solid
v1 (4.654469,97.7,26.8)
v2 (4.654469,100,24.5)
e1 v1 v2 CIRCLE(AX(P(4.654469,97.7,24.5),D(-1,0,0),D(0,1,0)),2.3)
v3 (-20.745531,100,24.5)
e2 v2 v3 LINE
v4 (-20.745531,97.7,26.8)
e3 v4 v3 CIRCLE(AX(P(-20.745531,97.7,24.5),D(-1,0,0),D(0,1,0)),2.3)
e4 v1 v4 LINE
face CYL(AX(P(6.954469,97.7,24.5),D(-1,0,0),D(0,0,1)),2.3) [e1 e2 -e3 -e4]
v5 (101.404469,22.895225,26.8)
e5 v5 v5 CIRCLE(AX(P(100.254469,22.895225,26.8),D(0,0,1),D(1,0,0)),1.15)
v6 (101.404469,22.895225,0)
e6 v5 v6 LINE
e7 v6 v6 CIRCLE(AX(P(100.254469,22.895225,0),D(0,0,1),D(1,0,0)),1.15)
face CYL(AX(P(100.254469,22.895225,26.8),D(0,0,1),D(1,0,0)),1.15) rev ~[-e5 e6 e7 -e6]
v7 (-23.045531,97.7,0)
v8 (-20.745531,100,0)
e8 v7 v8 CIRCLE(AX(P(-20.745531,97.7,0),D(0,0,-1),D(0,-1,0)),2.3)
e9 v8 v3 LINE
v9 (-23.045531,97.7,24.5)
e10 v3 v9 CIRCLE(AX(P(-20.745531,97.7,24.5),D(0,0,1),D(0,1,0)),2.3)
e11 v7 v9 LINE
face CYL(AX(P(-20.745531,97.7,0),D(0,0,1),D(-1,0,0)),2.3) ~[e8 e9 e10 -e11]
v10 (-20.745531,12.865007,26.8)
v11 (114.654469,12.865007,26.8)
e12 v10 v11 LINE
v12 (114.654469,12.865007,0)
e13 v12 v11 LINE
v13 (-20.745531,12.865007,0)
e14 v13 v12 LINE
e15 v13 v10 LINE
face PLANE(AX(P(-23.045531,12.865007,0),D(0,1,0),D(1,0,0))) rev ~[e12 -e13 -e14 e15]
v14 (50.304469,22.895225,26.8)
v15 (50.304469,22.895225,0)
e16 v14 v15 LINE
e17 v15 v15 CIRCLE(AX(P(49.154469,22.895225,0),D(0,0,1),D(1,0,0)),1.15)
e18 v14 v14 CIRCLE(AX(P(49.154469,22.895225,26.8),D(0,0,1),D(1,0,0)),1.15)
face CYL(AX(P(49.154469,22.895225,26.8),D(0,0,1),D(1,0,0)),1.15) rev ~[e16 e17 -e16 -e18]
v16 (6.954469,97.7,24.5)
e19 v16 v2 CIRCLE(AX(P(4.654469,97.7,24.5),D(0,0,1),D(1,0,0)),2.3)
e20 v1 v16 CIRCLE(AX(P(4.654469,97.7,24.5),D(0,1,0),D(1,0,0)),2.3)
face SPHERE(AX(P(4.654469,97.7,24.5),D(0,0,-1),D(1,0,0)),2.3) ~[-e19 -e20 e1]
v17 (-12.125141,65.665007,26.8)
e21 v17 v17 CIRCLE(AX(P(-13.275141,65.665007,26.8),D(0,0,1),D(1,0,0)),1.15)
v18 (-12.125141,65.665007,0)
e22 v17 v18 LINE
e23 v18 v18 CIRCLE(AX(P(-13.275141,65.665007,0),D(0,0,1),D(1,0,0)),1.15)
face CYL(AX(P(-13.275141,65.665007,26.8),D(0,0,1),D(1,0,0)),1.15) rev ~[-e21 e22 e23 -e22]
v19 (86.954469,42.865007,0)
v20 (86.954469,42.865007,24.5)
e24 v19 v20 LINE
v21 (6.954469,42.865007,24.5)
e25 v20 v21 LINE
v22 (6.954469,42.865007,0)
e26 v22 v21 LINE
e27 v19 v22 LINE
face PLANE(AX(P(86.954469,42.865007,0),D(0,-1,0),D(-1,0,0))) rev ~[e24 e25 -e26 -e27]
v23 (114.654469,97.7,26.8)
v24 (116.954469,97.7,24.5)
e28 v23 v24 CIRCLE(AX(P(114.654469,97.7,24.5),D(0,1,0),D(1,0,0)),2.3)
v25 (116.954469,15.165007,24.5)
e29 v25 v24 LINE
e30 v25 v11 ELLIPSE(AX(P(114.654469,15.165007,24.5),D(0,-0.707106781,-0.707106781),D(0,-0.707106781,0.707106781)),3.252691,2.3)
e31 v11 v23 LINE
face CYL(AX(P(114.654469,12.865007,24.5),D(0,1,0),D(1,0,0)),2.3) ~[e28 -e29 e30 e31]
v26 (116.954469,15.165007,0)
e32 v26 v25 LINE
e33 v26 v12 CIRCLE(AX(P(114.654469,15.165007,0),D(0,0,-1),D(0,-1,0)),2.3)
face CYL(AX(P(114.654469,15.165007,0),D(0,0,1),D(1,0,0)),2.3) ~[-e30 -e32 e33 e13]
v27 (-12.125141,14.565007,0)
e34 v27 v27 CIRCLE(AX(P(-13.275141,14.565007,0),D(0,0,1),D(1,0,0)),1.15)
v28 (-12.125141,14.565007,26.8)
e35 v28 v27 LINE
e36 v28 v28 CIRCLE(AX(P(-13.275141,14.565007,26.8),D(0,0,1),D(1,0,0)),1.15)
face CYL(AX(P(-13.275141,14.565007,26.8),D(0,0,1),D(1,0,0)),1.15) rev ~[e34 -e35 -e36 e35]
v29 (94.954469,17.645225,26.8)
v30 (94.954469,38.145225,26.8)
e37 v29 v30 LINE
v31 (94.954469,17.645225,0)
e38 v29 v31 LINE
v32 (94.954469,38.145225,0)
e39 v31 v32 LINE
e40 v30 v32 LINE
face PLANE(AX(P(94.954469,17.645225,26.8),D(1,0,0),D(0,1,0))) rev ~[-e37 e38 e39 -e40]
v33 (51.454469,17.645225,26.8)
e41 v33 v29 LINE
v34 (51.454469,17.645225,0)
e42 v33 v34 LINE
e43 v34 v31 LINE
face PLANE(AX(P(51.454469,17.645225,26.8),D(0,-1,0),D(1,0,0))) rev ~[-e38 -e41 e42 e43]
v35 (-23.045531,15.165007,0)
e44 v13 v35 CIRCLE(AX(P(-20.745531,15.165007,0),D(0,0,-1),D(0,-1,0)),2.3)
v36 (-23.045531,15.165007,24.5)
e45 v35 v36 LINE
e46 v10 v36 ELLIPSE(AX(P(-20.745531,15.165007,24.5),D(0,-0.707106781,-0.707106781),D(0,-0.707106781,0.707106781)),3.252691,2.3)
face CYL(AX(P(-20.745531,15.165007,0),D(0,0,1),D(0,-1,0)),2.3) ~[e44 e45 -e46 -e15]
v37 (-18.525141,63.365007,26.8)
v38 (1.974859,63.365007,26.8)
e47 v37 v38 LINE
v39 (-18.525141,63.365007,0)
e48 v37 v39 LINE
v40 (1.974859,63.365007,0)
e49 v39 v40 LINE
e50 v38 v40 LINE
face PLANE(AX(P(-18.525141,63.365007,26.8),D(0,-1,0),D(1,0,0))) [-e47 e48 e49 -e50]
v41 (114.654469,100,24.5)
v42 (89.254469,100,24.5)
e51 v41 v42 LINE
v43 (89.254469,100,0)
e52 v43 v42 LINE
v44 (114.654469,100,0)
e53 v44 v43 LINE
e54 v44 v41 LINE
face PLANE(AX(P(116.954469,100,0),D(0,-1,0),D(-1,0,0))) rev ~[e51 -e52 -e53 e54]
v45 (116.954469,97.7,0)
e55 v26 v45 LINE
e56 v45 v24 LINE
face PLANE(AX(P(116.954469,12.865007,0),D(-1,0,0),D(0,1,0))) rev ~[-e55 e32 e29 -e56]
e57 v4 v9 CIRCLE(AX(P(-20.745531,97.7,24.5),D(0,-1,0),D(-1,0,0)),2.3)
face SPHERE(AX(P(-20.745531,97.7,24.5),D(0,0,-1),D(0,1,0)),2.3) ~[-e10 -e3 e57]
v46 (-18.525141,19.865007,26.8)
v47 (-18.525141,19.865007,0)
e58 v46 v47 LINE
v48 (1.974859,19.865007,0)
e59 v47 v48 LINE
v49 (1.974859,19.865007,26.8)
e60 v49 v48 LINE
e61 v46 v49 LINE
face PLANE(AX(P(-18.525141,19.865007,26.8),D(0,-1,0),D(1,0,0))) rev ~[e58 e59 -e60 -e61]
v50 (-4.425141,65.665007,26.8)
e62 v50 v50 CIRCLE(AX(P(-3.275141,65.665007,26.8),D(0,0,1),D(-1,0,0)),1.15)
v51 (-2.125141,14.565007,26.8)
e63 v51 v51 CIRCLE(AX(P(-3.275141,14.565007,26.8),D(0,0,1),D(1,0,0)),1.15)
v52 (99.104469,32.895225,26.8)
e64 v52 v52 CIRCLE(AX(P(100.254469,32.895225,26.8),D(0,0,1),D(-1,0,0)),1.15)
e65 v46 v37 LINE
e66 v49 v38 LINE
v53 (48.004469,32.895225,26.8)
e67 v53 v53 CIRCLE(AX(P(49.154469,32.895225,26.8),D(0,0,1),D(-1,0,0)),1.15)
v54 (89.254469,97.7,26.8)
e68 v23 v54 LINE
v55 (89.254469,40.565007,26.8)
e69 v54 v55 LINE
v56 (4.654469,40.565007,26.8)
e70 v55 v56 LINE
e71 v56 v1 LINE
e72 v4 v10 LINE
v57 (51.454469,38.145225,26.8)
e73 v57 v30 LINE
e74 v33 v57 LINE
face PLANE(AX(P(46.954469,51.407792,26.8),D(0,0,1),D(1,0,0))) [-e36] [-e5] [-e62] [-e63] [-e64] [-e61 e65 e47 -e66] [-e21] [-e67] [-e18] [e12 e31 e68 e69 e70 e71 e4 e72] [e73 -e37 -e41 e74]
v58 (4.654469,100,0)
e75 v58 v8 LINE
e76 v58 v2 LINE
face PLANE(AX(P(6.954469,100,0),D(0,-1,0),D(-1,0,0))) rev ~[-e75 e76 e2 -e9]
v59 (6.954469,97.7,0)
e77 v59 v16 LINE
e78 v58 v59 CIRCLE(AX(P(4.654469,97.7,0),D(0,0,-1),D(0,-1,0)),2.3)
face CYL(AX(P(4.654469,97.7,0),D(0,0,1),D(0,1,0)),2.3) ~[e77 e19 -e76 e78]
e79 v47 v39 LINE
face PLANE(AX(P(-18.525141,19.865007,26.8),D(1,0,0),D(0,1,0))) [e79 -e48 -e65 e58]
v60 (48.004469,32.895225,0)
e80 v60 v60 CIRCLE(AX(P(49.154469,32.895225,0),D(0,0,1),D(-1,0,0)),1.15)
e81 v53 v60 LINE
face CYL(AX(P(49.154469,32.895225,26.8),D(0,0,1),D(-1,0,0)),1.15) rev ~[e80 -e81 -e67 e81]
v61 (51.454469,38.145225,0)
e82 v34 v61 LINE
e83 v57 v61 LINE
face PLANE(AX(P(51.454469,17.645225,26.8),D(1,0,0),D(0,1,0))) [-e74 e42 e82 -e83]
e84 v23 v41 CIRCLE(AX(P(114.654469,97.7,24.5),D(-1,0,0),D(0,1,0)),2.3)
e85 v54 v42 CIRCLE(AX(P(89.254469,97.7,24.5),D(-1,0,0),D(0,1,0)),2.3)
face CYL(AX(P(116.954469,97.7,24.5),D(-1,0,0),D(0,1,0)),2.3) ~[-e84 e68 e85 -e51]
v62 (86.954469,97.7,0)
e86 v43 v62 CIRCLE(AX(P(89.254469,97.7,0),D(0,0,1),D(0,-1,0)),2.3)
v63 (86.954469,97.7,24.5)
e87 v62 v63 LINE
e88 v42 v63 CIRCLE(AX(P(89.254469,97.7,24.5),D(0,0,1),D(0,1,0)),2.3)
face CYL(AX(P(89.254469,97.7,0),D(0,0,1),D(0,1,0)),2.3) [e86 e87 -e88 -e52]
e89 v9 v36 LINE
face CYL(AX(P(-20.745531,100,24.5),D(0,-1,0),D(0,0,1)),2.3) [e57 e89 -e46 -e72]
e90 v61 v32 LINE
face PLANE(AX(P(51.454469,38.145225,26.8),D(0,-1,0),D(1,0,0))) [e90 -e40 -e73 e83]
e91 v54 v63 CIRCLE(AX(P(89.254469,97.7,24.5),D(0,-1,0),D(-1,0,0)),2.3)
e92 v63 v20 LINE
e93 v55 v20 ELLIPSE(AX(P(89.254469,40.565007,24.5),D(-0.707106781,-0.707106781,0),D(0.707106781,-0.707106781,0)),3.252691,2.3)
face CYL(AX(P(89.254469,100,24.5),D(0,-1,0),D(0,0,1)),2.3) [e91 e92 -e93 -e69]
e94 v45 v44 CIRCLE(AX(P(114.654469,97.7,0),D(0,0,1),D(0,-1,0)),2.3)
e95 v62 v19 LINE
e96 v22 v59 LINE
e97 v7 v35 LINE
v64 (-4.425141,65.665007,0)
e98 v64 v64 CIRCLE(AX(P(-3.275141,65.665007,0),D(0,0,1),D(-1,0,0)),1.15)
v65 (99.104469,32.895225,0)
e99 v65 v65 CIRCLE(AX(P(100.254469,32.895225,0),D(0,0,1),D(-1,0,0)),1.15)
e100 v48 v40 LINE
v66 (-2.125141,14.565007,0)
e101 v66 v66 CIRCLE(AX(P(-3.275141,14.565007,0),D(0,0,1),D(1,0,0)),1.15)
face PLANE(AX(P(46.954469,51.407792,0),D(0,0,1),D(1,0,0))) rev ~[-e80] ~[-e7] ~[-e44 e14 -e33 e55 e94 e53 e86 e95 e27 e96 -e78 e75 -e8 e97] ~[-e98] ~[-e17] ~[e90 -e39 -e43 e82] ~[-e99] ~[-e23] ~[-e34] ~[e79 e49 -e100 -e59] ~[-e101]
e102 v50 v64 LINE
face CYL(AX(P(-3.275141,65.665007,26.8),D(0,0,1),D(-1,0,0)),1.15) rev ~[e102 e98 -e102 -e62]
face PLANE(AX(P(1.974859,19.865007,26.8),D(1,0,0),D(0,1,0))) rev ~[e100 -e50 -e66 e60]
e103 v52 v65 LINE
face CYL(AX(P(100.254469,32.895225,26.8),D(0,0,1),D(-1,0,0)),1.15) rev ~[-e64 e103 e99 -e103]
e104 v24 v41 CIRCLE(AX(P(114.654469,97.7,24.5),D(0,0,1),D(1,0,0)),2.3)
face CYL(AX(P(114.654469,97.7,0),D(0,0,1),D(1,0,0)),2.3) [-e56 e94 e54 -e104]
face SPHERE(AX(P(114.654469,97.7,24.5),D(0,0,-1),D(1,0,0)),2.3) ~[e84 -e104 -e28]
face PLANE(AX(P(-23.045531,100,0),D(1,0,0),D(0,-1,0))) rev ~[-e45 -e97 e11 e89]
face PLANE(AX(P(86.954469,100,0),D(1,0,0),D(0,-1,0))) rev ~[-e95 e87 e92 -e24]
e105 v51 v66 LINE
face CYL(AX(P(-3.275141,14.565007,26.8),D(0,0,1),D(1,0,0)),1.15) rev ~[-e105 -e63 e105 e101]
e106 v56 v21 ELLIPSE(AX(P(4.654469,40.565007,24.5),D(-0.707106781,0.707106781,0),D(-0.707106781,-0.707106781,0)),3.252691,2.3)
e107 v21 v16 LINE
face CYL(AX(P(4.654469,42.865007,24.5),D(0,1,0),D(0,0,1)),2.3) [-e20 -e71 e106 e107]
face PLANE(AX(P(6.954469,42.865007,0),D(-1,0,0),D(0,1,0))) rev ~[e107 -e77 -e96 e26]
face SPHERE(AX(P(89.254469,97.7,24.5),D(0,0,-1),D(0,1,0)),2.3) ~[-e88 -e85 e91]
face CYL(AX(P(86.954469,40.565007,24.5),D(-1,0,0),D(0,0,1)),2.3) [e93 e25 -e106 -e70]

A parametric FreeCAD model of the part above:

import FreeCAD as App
import Part
import Sketcher

V = App.Vector


def edges_at(feature, points):
    """Names of the edges that pass closest to the given points."""
    edges = feature.Shape.Edges
    near = lambda p: min(range(len(edges)), key=lambda i: edges[i].distToShape(Part.Vertex(*p))[0])
    return sorted({f"Edge{near(p) + 1}" for p in points})

doc = App.newDocument("Part")
body = doc.addObject("PartDesign::Body", "Body")

sketch1 = doc.addObject("Sketcher::SketchObject", "Sketch")
body.addObject(sketch1)
sketch1.AttachmentSupport = (doc.XY_Plane, [""])
sketch1.MapMode = "FlatFace"
sketch1.addGeometry([
    Part.LineSegment(V(116.954469, 12.865007, 0), V(116.954469, 100, 0)),
    Part.LineSegment(V(116.954469, 100, 0), V(86.954469, 100, 0)),
    Part.LineSegment(V(86.954469, 100, 0), V(86.954469, 42.865007, 0)),
    Part.LineSegment(V(86.954469, 42.865007, 0), V(6.954469, 42.865007, 0)),
    Part.LineSegment(V(6.954469, 42.865007, 0), V(6.954469, 100, 0)),
    Part.LineSegment(V(6.954469, 100, 0), V(-23.045531, 100, 0)),
    Part.LineSegment(V(-23.045531, 100, 0), V(-23.045531, 12.865007, 0)),
    Part.LineSegment(V(-23.045531, 12.865007, 0), V(116.954469, 12.865007, 0)),
], False)
sketch1.addConstraint([
    Sketcher.Constraint("Coincident", 0, 2, 1, 1),
    Sketcher.Constraint("Coincident", 1, 2, 2, 1),
    Sketcher.Constraint("Coincident", 2, 2, 3, 1),
    Sketcher.Constraint("Coincident", 3, 2, 4, 1),
    Sketcher.Constraint("Coincident", 4, 2, 5, 1),
    Sketcher.Constraint("Coincident", 5, 2, 6, 1),
    Sketcher.Constraint("Coincident", 6, 2, 7, 1),
    Sketcher.Constraint("Coincident", 7, 2, 0, 1),
    Sketcher.Constraint("Vertical", 0),
    Sketcher.Constraint("Horizontal", 1),
    Sketcher.Constraint("Vertical", 2),
    Sketcher.Constraint("Horizontal", 3),
    Sketcher.Constraint("Vertical", 4),
    Sketcher.Constraint("Horizontal", 5),
    Sketcher.Constraint("Vertical", 6),
    Sketcher.Constraint("Horizontal", 7),
    Sketcher.Constraint("Horizontal", 1, 2, 4, 2),
    Sketcher.Constraint("Equal", 1, 5),
    Sketcher.Constraint("DistanceX", 1, 2, 1, 1, 30.0),
    Sketcher.Constraint("DistanceX", 3, 2, 3, 1, 80.0),
    Sketcher.Constraint("DistanceY", -1, 1, 0, 2, 100.0),
    Sketcher.Constraint("DistanceY", 6, 2, 3, 2, 30.0),
    Sketcher.Constraint("DistanceY", 0, 1, 0, 2, 87.134993),
    Sketcher.Constraint("DistanceX", -1, 1, 0, 2, 116.954469),
])
pad1 = doc.addObject("PartDesign::Pad", "Pad")
body.addObject(pad1)
pad1.Profile = sketch1
pad1.Length = 26.8

sketch2 = doc.addObject("Sketcher::SketchObject", "Sketch001")
body.addObject(sketch2)
sketch2.AttachmentSupport = (doc.XY_Plane, [""])
sketch2.MapMode = "FlatFace"
sketch2.AttachmentOffset = App.Placement(V(0, 0, 26.8), App.Rotation())
sketch2.addGeometry([
    Part.LineSegment(V(-18.525141, 63.365007, 0), V(-18.525141, 19.865007, 0)),
    Part.LineSegment(V(-18.525141, 19.865007, 0), V(1.974859, 19.865007, 0)),
    Part.LineSegment(V(1.974859, 19.865007, 0), V(1.974859, 63.365007, 0)),
    Part.LineSegment(V(1.974859, 63.365007, 0), V(-18.525141, 63.365007, 0)),
    Part.LineSegment(V(51.454469, 38.145225, 0), V(51.454469, 17.645225, 0)),
    Part.LineSegment(V(51.454469, 17.645225, 0), V(94.954469, 17.645225, 0)),
    Part.LineSegment(V(94.954469, 17.645225, 0), V(94.954469, 38.145225, 0)),
    Part.LineSegment(V(94.954469, 38.145225, 0), V(51.454469, 38.145225, 0)),
], False)
sketch2.addConstraint([
    Sketcher.Constraint("Coincident", 0, 2, 1, 1),
    Sketcher.Constraint("Coincident", 1, 2, 2, 1),
    Sketcher.Constraint("Coincident", 2, 2, 3, 1),
    Sketcher.Constraint("Coincident", 3, 2, 0, 1),
    Sketcher.Constraint("Coincident", 4, 2, 5, 1),
    Sketcher.Constraint("Coincident", 5, 2, 6, 1),
    Sketcher.Constraint("Coincident", 6, 2, 7, 1),
    Sketcher.Constraint("Coincident", 7, 2, 4, 1),
    Sketcher.Constraint("Vertical", 0),
    Sketcher.Constraint("Horizontal", 1),
    Sketcher.Constraint("Vertical", 2),
    Sketcher.Constraint("Horizontal", 3),
    Sketcher.Constraint("Vertical", 4),
    Sketcher.Constraint("Horizontal", 5),
    Sketcher.Constraint("Vertical", 6),
    Sketcher.Constraint("Horizontal", 7),
    Sketcher.Constraint("Equal", 7, 0),
    Sketcher.Constraint("Equal", 3, 4),
    Sketcher.Constraint("DistanceX", 1, 1, 1, 2, 20.5),
    Sketcher.Constraint("DistanceX", 5, 1, 5, 2, 43.5),
    Sketcher.Constraint("DistanceX", 0, 2, -1, 1, 18.525141),
    Sketcher.Constraint("DistanceX", -1, 1, 4, 2, 51.454469),
    Sketcher.Constraint("DistanceY", -1, 1, 0, 2, 19.865007),
    Sketcher.Constraint("DistanceY", -1, 1, 4, 2, 17.645225),
])
pocket1 = doc.addObject("PartDesign::Pocket", "Pocket")
body.addObject(pocket1)
pocket1.Profile = sketch2
pocket1.Type = "ThroughAll"

sketch3 = doc.addObject("Sketcher::SketchObject", "Sketch002")
body.addObject(sketch3)
sketch3.AttachmentSupport = (doc.XY_Plane, [""])
sketch3.MapMode = "FlatFace"
sketch3.AttachmentOffset = App.Placement(V(0, 0, 26.8), App.Rotation())
sketch3.addGeometry([
    Part.Circle(V(-13.275141, 14.565007, 0), V(0, 0, 1), 1.15),
    Part.Circle(V(-3.275141, 14.565007, 0), V(0, 0, 1), 1.15),
    Part.Circle(V(-13.275141, 65.665007, 0), V(0, 0, 1), 1.15),
    Part.Circle(V(-3.275141, 65.665007, 0), V(0, 0, 1), 1.15),
], False)
sketch3.addConstraint([
    Sketcher.Constraint("Equal", 0, 1),
    Sketcher.Constraint("Equal", 1, 2),
    Sketcher.Constraint("Equal", 2, 3),
    Sketcher.Constraint("Horizontal", 0, 3, 1, 3),
    Sketcher.Constraint("Horizontal", 2, 3, 3, 3),
    Sketcher.Constraint("Vertical", 0, 3, 2, 3),
    Sketcher.Constraint("Vertical", 1, 3, 3, 3),
    Sketcher.Constraint("Diameter", 0, 2.3),
    Sketcher.Constraint("DistanceX", 0, 3, 1, 3, 10.0),
    Sketcher.Constraint("DistanceY", 0, 3, 2, 3, 51.1),
    Sketcher.Constraint("DistanceX", 0, 3, -1, 1, 13.275141),
    Sketcher.Constraint("DistanceY", -1, 1, 0, 3, 14.565007),
])
pad2 = doc.addObject("PartDesign::Pad", "Pad001")
body.addObject(pad2)
pad2.Profile = sketch3
pad2.Length = 26.8
pad2.Reversed = True

sketch4 = doc.addObject("Sketcher::SketchObject", "Sketch003")
body.addObject(sketch4)
sketch4.AttachmentSupport = (doc.XY_Plane, [""])
sketch4.MapMode = "FlatFace"
sketch4.AttachmentOffset = App.Placement(V(0, 0, 26.8), App.Rotation())
sketch4.addGeometry([
    Part.Circle(V(-13.275141, 14.565007, 0), V(0, 0, 1), 1.15),
    Part.Circle(V(-3.275141, 14.565007, 0), V(0, 0, 1), 1.15),
    Part.Circle(V(-13.275141, 65.665007, 0), V(0, 0, 1), 1.15),
    Part.Circle(V(-3.275141, 65.665007, 0), V(0, 0, 1), 1.15),
], False)
sketch4.addConstraint([
    Sketcher.Constraint("Equal", 0, 1),
    Sketcher.Constraint("Equal", 1, 2),
    Sketcher.Constraint("Equal", 2, 3),
    Sketcher.Constraint("Horizontal", 0, 3, 1, 3),
    Sketcher.Constraint("Horizontal", 2, 3, 3, 3),
    Sketcher.Constraint("Vertical", 0, 3, 2, 3),
    Sketcher.Constraint("Vertical", 1, 3, 3, 3),
    Sketcher.Constraint("Diameter", 0, 2.3),
    Sketcher.Constraint("DistanceX", 0, 3, 1, 3, 10.0),
    Sketcher.Constraint("DistanceY", 0, 3, 2, 3, 51.1),
    Sketcher.Constraint("DistanceX", 0, 3, -1, 1, 13.275141),
    Sketcher.Constraint("DistanceY", -1, 1, 0, 3, 14.565007),
])
pocket2 = doc.addObject("PartDesign::Pocket", "Pocket001")
body.addObject(pocket2)
pocket2.Profile = sketch4
pocket2.Type = "ThroughAll"

sketch5 = doc.addObject("Sketcher::SketchObject", "Sketch004")
body.addObject(sketch5)
sketch5.AttachmentSupport = (doc.XY_Plane, [""])
sketch5.MapMode = "FlatFace"
sketch5.AttachmentOffset = App.Placement(V(0, 0, 26.8), App.Rotation())
sketch5.addGeometry([
    Part.Circle(V(100.254469, 22.895225, 0), V(0, 0, 1), 1.15),
    Part.Circle(V(100.254469, 32.895225, 0), V(0, 0, 1), 1.15),
    Part.Circle(V(49.154469, 22.895225, 0), V(0, 0, 1), 1.15),
    Part.Circle(V(49.154469, 32.895225, 0), V(0, 0, 1), 1.15),
], False)
sketch5.addConstraint([
    Sketcher.Constraint("Equal", 0, 1),
    Sketcher.Constraint("Equal", 1, 2),
    Sketcher.Constraint("Equal", 2, 3),
    Sketcher.Constraint("Horizontal", 0, 3, 2, 3),
    Sketcher.Constraint("Horizontal", 1, 3, 3, 3),
    Sketcher.Constraint("Vertical", 0, 3, 1, 3),
    Sketcher.Constraint("Vertical", 2, 3, 3, 3),
    Sketcher.Constraint("Diameter", 0, 2.3),
    Sketcher.Constraint("DistanceY", 0, 3, 1, 3, 10.0),
    Sketcher.Constraint("DistanceX", 2, 3, 0, 3, 51.1),
    Sketcher.Constraint("DistanceX", -1, 1, 0, 3, 100.254469),
    Sketcher.Constraint("DistanceY", -1, 1, 0, 3, 22.895225),
])
pocket3 = doc.addObject("PartDesign::Pocket", "Pocket002")
body.addObject(pocket3)
pocket3.Profile = sketch5
pocket3.Type = "ThroughAll"
doc.recompute()

fillet = doc.addObject("PartDesign::Fillet", "Fillet")
body.addObject(fillet)
fillet.Base = (pocket3, edges_at(pocket3, [
    (6.954, 100, 13.4),
    (86.954, 100, 13.4),
    (116.954, 100, 13.4),
    (116.954, 12.865, 13.4),
    (-23.046, 12.865, 13.4),
    (-23.046, 100, 13.4),
    (116.954, 56.433, 26.8),
    (101.954, 100, 26.8),
    (86.954, 71.433, 26.8),
    (46.954, 42.865, 26.8),
    (6.954, 71.433, 26.8),
    (-8.046, 100, 26.8),
    (-23.046, 56.433, 26.8),
]))
fillet.Radius = 2.3

doc.recompute()
